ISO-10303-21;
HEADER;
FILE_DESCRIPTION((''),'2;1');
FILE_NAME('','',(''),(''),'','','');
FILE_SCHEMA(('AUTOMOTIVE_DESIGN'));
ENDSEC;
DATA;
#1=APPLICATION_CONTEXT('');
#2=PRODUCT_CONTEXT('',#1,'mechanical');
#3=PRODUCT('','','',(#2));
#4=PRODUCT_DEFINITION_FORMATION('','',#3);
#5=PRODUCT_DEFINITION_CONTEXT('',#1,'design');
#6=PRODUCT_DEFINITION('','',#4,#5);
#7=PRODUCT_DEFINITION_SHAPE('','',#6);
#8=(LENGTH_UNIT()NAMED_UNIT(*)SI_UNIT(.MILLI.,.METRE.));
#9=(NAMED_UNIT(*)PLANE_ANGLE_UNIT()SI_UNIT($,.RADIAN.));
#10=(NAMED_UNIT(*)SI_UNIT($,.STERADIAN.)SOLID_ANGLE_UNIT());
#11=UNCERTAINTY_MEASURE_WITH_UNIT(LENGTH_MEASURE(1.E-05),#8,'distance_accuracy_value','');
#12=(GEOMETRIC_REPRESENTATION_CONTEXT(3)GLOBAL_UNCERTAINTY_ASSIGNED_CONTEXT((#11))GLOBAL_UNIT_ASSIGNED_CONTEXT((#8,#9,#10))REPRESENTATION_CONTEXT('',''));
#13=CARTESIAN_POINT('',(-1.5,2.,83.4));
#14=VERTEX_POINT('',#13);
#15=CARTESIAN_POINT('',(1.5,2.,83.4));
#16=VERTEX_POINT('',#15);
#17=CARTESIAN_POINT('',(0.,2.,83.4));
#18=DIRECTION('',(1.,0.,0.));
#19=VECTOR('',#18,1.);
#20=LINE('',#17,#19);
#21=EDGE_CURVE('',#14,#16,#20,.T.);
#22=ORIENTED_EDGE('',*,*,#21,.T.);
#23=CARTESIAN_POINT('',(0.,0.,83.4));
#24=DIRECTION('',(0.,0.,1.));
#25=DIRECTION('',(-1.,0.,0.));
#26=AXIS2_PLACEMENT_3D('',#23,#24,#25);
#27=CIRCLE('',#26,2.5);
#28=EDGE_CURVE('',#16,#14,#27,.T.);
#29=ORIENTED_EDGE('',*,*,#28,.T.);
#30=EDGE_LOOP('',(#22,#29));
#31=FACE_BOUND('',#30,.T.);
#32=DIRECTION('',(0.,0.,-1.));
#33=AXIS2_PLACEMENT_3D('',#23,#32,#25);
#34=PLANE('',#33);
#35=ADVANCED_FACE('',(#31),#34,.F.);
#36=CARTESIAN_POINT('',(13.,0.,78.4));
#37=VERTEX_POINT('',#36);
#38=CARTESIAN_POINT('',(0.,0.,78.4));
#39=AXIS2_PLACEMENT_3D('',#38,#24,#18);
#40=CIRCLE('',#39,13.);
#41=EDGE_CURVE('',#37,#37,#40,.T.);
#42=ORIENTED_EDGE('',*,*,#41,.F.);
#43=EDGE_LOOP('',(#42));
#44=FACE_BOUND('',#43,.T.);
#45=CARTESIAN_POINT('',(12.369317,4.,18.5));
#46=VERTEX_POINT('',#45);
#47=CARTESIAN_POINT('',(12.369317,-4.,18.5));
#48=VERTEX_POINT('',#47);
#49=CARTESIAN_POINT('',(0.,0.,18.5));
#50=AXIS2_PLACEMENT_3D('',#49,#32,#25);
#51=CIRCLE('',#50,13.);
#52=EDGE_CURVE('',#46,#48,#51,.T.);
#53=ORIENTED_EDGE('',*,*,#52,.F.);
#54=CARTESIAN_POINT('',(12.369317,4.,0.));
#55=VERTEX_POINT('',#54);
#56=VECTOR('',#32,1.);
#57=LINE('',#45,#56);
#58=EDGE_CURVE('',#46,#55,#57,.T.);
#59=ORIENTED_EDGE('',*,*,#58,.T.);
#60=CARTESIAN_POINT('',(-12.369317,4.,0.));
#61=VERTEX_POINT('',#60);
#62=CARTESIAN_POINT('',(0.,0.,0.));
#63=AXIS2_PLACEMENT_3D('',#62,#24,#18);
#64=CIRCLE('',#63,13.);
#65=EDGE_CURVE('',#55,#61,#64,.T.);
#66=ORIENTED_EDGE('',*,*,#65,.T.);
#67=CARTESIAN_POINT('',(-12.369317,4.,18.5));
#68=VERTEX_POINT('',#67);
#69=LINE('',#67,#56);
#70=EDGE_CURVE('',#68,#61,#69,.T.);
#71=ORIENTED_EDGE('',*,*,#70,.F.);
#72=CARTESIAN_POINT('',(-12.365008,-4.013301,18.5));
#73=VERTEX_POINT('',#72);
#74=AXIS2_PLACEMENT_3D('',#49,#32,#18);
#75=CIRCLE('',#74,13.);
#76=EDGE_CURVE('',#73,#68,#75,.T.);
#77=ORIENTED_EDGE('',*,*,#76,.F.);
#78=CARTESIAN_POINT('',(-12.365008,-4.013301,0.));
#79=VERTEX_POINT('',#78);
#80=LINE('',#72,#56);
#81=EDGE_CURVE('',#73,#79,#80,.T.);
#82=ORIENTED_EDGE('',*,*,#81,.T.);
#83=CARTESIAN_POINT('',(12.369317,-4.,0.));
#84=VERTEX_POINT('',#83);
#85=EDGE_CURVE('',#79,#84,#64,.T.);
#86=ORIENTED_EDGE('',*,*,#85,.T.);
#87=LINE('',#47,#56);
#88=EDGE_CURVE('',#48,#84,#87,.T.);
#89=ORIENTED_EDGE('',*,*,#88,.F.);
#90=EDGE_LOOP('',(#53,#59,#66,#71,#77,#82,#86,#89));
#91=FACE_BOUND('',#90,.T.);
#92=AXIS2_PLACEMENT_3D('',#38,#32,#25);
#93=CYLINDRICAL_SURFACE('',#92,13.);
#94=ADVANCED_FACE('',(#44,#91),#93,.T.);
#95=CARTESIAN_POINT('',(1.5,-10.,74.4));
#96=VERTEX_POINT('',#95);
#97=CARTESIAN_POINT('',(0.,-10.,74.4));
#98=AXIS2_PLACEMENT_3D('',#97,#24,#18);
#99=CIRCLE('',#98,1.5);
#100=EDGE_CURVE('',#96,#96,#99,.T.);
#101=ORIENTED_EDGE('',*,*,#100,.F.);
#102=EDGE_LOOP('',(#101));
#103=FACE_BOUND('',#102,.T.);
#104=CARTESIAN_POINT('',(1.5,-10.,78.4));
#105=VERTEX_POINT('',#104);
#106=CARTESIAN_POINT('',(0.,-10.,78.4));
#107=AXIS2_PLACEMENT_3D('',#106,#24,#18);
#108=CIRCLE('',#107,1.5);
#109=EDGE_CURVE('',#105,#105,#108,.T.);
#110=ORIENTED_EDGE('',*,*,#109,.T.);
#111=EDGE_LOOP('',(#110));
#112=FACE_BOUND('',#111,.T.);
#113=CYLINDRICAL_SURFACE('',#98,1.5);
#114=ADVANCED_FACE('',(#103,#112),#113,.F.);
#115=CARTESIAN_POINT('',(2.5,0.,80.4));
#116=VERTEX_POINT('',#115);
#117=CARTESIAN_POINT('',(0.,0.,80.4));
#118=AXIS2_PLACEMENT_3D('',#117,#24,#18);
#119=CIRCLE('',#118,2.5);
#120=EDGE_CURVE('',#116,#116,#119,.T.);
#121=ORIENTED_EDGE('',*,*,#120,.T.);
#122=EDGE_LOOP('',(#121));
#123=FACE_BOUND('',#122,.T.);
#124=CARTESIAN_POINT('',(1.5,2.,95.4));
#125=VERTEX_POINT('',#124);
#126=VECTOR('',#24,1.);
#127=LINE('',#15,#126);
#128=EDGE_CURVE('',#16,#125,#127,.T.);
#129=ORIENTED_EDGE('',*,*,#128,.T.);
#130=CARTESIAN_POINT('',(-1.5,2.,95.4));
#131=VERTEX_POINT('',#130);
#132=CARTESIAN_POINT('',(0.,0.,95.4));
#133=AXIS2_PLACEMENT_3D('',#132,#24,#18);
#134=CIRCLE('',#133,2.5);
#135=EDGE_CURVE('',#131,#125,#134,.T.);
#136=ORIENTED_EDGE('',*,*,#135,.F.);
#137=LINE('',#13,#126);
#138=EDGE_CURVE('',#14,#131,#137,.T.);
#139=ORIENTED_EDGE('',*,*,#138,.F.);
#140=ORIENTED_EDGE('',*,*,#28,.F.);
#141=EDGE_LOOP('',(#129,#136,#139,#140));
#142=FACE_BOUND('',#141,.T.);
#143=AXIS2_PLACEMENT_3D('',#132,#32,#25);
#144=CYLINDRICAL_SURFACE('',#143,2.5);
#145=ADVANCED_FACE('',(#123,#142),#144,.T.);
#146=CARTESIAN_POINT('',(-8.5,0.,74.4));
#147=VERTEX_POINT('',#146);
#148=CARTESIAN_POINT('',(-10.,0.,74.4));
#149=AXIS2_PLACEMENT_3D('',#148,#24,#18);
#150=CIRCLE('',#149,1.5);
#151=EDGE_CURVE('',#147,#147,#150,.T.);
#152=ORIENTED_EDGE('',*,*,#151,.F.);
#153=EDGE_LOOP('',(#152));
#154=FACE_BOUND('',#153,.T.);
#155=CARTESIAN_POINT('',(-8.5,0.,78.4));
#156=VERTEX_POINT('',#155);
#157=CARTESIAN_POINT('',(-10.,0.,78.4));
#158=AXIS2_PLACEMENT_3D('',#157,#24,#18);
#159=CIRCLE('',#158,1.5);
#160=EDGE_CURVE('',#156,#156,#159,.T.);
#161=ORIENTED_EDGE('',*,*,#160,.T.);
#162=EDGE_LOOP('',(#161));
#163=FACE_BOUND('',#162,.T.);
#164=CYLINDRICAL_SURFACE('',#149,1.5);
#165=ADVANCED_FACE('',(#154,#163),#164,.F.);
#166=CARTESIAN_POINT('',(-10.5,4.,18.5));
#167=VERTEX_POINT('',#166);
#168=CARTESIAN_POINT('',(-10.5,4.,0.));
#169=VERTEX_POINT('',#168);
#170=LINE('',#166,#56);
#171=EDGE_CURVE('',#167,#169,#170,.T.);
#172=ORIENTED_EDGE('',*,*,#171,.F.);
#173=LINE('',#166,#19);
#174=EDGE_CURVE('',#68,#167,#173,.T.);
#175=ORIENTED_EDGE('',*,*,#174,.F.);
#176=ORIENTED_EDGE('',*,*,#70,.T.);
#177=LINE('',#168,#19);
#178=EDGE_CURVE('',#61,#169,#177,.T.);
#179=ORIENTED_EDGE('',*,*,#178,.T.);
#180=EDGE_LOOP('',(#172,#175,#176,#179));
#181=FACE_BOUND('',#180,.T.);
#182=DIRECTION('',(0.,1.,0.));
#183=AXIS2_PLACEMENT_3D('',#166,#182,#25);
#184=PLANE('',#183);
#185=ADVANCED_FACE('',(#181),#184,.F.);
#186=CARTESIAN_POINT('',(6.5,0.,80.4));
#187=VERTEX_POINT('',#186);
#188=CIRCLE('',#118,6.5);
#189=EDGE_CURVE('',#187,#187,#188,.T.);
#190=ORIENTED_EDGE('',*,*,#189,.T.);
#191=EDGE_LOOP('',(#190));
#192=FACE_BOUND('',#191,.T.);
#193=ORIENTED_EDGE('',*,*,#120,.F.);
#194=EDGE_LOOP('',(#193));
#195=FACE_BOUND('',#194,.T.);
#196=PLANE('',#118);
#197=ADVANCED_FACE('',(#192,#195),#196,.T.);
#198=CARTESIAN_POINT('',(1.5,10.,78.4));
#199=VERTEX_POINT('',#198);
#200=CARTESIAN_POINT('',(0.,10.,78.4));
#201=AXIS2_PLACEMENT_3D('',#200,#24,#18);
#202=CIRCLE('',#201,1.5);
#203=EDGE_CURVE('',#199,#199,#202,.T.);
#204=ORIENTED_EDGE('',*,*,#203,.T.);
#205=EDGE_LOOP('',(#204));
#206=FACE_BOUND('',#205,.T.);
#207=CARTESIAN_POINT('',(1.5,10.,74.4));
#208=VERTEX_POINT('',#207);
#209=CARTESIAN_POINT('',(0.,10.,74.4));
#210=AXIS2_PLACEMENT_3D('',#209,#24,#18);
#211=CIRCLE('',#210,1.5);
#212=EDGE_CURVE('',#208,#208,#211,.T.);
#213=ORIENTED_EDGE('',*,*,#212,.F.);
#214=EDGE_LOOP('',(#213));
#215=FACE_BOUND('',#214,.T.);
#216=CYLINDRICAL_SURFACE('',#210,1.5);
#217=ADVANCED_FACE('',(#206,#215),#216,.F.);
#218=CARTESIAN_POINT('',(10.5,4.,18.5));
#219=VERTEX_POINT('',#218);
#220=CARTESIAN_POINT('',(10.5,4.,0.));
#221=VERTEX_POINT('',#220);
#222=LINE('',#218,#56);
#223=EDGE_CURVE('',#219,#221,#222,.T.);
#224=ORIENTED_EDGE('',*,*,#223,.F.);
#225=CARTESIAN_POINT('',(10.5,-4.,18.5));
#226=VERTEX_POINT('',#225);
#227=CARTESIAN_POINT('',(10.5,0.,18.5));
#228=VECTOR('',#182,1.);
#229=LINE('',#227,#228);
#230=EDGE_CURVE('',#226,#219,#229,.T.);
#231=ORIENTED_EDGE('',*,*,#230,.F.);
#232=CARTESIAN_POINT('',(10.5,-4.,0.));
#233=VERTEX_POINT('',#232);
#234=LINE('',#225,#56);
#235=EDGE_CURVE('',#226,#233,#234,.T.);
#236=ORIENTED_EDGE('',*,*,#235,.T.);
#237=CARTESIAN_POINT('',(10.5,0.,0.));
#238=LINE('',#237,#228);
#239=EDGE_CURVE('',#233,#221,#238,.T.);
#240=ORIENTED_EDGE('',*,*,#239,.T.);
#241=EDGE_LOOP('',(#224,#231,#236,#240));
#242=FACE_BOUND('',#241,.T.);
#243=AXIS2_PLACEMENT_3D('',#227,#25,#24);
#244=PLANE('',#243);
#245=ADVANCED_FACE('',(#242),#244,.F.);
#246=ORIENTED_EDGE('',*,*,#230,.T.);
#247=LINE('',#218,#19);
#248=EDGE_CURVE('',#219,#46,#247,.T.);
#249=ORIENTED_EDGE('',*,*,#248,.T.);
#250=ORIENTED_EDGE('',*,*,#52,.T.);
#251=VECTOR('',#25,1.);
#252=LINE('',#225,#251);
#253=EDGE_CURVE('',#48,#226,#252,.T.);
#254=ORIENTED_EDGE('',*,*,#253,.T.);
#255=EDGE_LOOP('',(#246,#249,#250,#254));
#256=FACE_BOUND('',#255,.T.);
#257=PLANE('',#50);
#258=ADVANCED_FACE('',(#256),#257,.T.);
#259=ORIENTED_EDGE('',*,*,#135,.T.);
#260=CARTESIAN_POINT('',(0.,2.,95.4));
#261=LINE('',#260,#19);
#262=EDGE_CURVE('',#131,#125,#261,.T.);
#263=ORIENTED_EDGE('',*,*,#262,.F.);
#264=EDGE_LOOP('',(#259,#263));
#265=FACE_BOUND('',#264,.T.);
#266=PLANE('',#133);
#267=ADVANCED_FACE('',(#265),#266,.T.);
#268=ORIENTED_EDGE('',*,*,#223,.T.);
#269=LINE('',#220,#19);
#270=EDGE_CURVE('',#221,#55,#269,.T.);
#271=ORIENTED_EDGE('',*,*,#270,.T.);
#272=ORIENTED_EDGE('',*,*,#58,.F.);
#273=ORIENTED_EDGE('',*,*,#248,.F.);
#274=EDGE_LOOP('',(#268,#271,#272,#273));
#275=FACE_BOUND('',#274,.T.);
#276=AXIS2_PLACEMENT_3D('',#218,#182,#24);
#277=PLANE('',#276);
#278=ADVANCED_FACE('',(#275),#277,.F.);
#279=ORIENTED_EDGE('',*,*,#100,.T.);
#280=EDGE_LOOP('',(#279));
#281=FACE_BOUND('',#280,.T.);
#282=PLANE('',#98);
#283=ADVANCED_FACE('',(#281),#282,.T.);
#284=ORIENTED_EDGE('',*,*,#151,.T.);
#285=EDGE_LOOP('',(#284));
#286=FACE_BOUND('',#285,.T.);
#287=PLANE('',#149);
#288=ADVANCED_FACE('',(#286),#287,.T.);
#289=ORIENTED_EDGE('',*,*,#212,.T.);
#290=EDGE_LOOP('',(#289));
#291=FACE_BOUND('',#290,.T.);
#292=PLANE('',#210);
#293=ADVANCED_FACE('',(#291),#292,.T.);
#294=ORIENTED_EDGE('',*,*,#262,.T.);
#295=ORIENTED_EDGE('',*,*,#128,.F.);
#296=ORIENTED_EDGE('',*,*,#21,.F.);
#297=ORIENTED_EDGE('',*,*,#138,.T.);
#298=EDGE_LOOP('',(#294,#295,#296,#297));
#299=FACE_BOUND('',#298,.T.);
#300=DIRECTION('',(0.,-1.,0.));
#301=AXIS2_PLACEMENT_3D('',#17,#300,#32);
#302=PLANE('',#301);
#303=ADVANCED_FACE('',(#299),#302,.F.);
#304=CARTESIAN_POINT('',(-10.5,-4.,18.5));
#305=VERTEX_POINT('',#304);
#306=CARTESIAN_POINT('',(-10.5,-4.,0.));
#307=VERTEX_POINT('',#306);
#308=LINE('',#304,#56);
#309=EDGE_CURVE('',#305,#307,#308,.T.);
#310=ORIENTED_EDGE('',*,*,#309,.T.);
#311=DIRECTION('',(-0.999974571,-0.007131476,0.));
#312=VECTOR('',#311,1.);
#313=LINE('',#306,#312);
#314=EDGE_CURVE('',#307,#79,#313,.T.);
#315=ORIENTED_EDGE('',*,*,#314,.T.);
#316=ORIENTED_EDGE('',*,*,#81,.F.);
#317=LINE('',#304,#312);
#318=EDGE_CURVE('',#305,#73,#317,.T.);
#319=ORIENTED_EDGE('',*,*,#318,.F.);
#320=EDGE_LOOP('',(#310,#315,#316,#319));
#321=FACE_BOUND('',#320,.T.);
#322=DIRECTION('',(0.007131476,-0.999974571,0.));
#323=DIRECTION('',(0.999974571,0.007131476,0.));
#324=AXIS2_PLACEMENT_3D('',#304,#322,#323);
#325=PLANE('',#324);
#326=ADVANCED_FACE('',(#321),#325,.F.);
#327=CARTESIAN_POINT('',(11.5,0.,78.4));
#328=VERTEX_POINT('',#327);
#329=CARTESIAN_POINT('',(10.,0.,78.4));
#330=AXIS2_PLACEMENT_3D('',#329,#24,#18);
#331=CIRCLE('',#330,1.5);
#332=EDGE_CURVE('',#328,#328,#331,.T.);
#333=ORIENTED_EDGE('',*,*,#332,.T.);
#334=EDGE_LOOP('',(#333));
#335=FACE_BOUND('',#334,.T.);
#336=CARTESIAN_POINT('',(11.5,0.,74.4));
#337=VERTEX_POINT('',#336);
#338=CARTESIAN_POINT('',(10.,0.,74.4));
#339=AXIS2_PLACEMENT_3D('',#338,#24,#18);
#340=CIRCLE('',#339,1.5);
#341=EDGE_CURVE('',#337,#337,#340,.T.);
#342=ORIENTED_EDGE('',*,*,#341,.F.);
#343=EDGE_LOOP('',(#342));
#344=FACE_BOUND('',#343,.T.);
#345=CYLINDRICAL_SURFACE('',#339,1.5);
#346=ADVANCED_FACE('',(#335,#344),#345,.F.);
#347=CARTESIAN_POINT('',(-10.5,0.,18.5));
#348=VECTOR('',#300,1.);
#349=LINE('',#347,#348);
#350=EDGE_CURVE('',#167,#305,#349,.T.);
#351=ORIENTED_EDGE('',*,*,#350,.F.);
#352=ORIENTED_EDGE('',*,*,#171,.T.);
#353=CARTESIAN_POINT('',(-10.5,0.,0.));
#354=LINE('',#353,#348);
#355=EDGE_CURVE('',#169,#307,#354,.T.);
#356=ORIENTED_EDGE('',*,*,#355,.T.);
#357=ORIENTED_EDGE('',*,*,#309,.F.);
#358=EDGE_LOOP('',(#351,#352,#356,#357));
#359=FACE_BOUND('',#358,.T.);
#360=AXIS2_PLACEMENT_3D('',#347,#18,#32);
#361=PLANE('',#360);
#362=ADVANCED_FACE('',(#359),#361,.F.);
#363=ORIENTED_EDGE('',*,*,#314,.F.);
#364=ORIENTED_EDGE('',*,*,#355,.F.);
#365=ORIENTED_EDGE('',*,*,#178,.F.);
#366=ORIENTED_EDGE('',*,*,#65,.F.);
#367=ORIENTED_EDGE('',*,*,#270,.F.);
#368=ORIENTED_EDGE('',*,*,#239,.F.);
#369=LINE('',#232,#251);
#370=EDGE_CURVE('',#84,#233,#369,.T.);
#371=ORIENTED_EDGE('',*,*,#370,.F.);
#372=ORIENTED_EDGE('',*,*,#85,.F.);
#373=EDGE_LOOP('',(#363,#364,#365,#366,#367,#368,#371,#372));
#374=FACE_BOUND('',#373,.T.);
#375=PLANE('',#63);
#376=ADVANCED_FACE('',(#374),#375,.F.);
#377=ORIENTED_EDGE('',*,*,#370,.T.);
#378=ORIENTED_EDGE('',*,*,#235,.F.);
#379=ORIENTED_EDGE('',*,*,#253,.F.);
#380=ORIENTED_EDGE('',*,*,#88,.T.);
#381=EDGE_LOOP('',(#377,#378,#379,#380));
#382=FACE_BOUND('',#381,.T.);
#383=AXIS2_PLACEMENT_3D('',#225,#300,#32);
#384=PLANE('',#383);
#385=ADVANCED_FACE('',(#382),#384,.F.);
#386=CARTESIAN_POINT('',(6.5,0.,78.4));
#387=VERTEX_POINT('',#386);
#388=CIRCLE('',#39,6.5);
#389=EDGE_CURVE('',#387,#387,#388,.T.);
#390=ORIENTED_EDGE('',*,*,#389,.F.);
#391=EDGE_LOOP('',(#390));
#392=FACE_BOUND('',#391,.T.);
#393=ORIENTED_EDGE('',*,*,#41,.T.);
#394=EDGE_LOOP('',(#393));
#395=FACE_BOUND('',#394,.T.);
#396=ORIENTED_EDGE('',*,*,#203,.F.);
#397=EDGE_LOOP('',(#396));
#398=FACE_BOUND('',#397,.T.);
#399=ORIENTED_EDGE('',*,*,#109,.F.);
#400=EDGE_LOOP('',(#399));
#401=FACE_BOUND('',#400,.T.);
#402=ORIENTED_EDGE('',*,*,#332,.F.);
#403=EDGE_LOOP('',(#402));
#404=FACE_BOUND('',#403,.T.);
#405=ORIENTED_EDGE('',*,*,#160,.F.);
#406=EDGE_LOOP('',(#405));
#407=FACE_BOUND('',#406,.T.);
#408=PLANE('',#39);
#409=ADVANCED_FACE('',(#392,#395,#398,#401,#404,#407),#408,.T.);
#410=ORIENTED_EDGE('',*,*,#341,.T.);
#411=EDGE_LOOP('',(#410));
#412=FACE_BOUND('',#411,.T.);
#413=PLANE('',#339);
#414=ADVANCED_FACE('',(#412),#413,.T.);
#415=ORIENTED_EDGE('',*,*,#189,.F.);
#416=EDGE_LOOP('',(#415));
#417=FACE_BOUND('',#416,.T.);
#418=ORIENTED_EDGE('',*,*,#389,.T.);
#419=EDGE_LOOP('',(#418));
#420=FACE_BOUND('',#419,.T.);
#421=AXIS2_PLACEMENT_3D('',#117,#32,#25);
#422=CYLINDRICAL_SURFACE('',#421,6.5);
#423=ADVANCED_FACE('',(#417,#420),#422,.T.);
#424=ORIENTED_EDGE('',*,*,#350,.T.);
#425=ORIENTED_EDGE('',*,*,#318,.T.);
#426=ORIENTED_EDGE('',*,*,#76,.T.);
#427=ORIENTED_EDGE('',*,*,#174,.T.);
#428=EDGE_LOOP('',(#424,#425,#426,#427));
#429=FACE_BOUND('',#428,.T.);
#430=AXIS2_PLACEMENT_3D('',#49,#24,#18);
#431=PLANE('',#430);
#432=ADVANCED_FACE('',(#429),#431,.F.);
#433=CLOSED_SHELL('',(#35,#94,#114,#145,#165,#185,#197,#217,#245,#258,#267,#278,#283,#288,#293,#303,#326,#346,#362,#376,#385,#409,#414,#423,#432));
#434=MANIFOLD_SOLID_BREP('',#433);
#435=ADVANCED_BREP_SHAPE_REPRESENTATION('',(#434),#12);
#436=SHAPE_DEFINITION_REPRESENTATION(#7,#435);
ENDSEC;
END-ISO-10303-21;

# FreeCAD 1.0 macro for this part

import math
import FreeCAD as App
import Part
import Sketcher
Q = App.Units.Quantity

doc = App.newDocument("Part")
body = doc.addObject("PartDesign::Body", "Body")

# Sketch on XY plane
sketch1 = doc.addObject("Sketcher::SketchObject", "Sketch")
body.addObject(sketch1)
sketch1.AttachmentSupport = (doc.XY_Plane, [""])
sketch1.MapMode = "FlatFace"
sketch1.addGeometry(Part.Circle(App.Vector(0, 0, 0), App.Vector(0, 0, 1), 13), False)
sketch1.addConstraint([
    Sketcher.Constraint("Coincident", 0, 3, -1, 1),
    Sketcher.Constraint("Diameter", 0, Q("26 mm")),
])
pad1 = doc.addObject("PartDesign::Pad", "Pad")
body.addObject(pad1)
pad1.Profile = sketch1
pad1.Length = 78.4

# Sketch on XY plane
sketch2 = doc.addObject("Sketcher::SketchObject", "Sketch001")
body.addObject(sketch2)
sketch2.AttachmentSupport = (doc.XY_Plane, [""])
sketch2.MapMode = "FlatFace"
sketch2.AttachmentOffset = App.Placement(App.Vector(0, 0, 78.4), App.Rotation())
sketch2.addGeometry(Part.Circle(App.Vector(0, 0, 0), App.Vector(0, 0, 1), 2.5), False)
sketch2.addConstraint([
    Sketcher.Constraint("Coincident", 0, 3, -1, 1),
    Sketcher.Constraint("Diameter", 0, Q("5 mm")),
])
pad2 = doc.addObject("PartDesign::Pad", "Pad001")
body.addObject(pad2)
pad2.Profile = sketch2
pad2.Length = 17

# Sketch on XY plane
sketch3 = doc.addObject("Sketcher::SketchObject", "Sketch002")
body.addObject(sketch3)
sketch3.AttachmentSupport = (doc.XY_Plane, [""])
sketch3.MapMode = "FlatFace"
sketch3.addGeometry([
    Part.LineSegment(App.Vector(10.5, 4, 0), App.Vector(12.369317, 4, 0)),  # 0
    Part.ArcOfCircle(Part.Circle(App.Vector(0, 0, 0), App.Vector(0, 0, 1), 13), math.radians(-17.920213), math.radians(17.920213)),  # 1
    Part.LineSegment(App.Vector(12.369317, -4, 0), App.Vector(10.5, -4, 0)),  # 2
    Part.LineSegment(App.Vector(10.5, -4, 0), App.Vector(10.5, 4, 0)),  # 3
    Part.LineSegment(App.Vector(-12.369317, 4, 0), App.Vector(-10.5, 4, 0)),  # 4
    Part.LineSegment(App.Vector(-10.5, 4, 0), App.Vector(-10.5, -4, 0)),  # 5
    Part.LineSegment(App.Vector(-10.5, -4, 0), App.Vector(-12.365008, -4.013301, 0)),  # 6
    Part.ArcOfCircle(Part.Circle(App.Vector(0, 0, 0), App.Vector(0, 0, 1), 13), math.radians(162.079787), math.radians(197.981833)),  # 7
], False)
sketch3.addConstraint([
    Sketcher.Constraint("Coincident", 0, 2, 1, 2),
    Sketcher.Constraint("Coincident", 1, 1, 2, 1),
    Sketcher.Constraint("Coincident", 2, 2, 3, 1),
    Sketcher.Constraint("Coincident", 3, 2, 0, 1),
    Sketcher.Constraint("Coincident", 4, 2, 5, 1),
    Sketcher.Constraint("Coincident", 5, 2, 6, 1),
    Sketcher.Constraint("Coincident", 6, 2, 7, 2),
    Sketcher.Constraint("Coincident", 7, 1, 4, 1),
    Sketcher.Constraint("Horizontal", 0),
    Sketcher.Constraint("Horizontal", 2),
    Sketcher.Constraint("Vertical", 3),
    Sketcher.Constraint("Horizontal", 4),
    Sketcher.Constraint("Vertical", 5),
    Sketcher.Constraint("Coincident", 1, 3, -1, 1),
    Sketcher.Constraint("Coincident", 7, 3, -1, 1),
    Sketcher.Constraint("Equal", 1, 7),
    Sketcher.Constraint("Symmetric", 2, 2, 4, 2, -1, 1),
    Sketcher.Constraint("Horizontal", 3, 2, 4, 2),
    Sketcher.Constraint("Horizontal", 2, 2, 5, 2),
    Sketcher.Constraint("Radius", 1, Q("13 mm")),
    Sketcher.Constraint("DistanceY", 3, 1, 3, 2, Q("8 mm")),
    Sketcher.Constraint("DistanceX", 4, 2, 3, 2, Q("21 mm")),
    Sketcher.Constraint("DistanceY", 6, 2, -1, 1, Q("4.013301 mm")),
])
pocket1 = doc.addObject("PartDesign::Pocket", "Pocket")
body.addObject(pocket1)
pocket1.Profile = sketch3
pocket1.Length = 18.5
pocket1.Reversed = True

# Sketch on XY plane
sketch4 = doc.addObject("Sketcher::SketchObject", "Sketch003")
body.addObject(sketch4)
sketch4.AttachmentSupport = (doc.XY_Plane, [""])
sketch4.MapMode = "FlatFace"
sketch4.AttachmentOffset = App.Placement(App.Vector(0, 0, 78.4), App.Rotation())
sketch4.addGeometry([
    Part.Circle(App.Vector(0, 0, 0), App.Vector(0, 0, 1), 6.5),
    Part.Circle(App.Vector(0, 0, 0), App.Vector(0, 0, 1), 2.5),
], False)
sketch4.addConstraint([
    Sketcher.Constraint("Coincident", 0, 3, -1, 1),
    Sketcher.Constraint("Coincident", 1, 3, -1, 1),
    Sketcher.Constraint("Diameter", 0, Q("13 mm")),
    Sketcher.Constraint("Diameter", 1, Q("5 mm")),
])
pad3 = doc.addObject("PartDesign::Pad", "Pad002")
body.addObject(pad3)
pad3.Profile = sketch4
pad3.Length = 2

# Sketch on XY plane
sketch5 = doc.addObject("Sketcher::SketchObject", "Sketch004")
body.addObject(sketch5)
sketch5.AttachmentSupport = (doc.XY_Plane, [""])
sketch5.MapMode = "FlatFace"
sketch5.AttachmentOffset = App.Placement(App.Vector(0, 0, 78.4), App.Rotation())
sketch5.addGeometry([
    Part.Circle(App.Vector(0, 10, 0), App.Vector(0, 0, 1), 1.5),
    Part.Circle(App.Vector(-10, 0, 0), App.Vector(0, 0, 1), 1.5),
    Part.Circle(App.Vector(0, -10, 0), App.Vector(0, 0, 1), 1.5),
    Part.Circle(App.Vector(10, 0, 0), App.Vector(0, 0, 1), 1.5),
], False)
sketch5.addConstraint([
    Sketcher.Constraint("Equal", 0, 1),
    Sketcher.Constraint("Equal", 1, 2),
    Sketcher.Constraint("Equal", 2, 3),
    Sketcher.Constraint("Symmetric", 0, 3, 2, 3, -1, 1),
    Sketcher.Constraint("Symmetric", 1, 3, 3, 3, -1, 1),
    Sketcher.Constraint("PointOnObject", 0, 3, -2),
    Sketcher.Constraint("PointOnObject", 1, 3, -1),
    Sketcher.Constraint("Diameter", 0, Q("3 mm")),
    Sketcher.Constraint("DistanceY", -1, 1, 0, 3, Q("10 mm")),
    Sketcher.Constraint("DistanceX", 1, 3, -1, 1, Q("10 mm")),
])
pocket2 = doc.addObject("PartDesign::Pocket", "Pocket001")
body.addObject(pocket2)
pocket2.Profile = sketch5
pocket2.Length = 4

# Sketch on XY plane
sketch6 = doc.addObject("Sketcher::SketchObject", "Sketch005")
body.addObject(sketch6)
sketch6.AttachmentSupport = (doc.XY_Plane, [""])
sketch6.MapMode = "FlatFace"
sketch6.AttachmentOffset = App.Placement(App.Vector(0, 0, 83.4), App.Rotation())
sketch6.addGeometry([
    Part.ArcOfCircle(Part.Circle(App.Vector(0, 0, 0), App.Vector(0, 0, 1), 2.5), math.radians(53.130102), math.radians(126.869898)),
    Part.LineSegment(App.Vector(-1.5, 2, 0), App.Vector(1.5, 2, 0)),
], False)
sketch6.addConstraint([
    Sketcher.Constraint("Coincident", 0, 1, 1, 2),
    Sketcher.Constraint("Coincident", 1, 1, 0, 2),
    Sketcher.Constraint("Horizontal", 1),
    Sketcher.Constraint("Coincident", 0, 3, -1, 1),
    Sketcher.Constraint("Radius", 0, Q("2.5 mm")),
    Sketcher.Constraint("DistanceX", 1, 1, 1, 2, Q("3 mm")),
])
pocket3 = doc.addObject("PartDesign::Pocket", "Pocket002")
body.addObject(pocket3)
pocket3.Profile = sketch6
pocket3.Length = 12
pocket3.Reversed = True

doc.recompute()
